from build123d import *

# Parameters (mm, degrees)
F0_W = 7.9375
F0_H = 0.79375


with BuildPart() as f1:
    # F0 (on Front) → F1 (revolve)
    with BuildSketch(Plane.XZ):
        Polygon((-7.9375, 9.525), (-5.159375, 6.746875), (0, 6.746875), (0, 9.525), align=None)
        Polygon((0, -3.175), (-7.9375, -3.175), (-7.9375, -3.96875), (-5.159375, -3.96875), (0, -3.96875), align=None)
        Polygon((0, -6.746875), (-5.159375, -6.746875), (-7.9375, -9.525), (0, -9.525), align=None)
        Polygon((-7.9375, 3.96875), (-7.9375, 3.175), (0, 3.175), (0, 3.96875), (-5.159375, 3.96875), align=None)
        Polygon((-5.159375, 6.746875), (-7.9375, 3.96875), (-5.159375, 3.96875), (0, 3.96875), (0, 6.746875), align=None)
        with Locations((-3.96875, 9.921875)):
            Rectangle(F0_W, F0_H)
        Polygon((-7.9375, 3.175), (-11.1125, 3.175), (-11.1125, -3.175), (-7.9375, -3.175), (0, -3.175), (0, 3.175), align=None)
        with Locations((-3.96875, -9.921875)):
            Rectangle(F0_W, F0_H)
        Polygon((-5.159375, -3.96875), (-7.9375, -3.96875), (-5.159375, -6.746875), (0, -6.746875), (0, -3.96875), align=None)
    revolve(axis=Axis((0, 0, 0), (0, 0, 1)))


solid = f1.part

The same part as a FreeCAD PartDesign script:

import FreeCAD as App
import Part
import Sketcher

V = App.Vector
Q = App.Units.Quantity


def add_polygon(sketch, points):
    """Adds a closed chain of lines whose ends are joined by coincident constraints."""
    first, n = sketch.GeometryCount, len(points)
    for a, b in zip(points, points[1:] + points[:1]):
        sketch.addGeometry(Part.LineSegment(App.Vector(*a, 0), App.Vector(*b, 0)), False)
    for i in range(n):
        sketch.addConstraint(Sketcher.Constraint("Coincident", first + i, 2, first + (i + 1) % n, 1))

doc = App.newDocument("Part")
body = doc.addObject("PartDesign::Body", "Body")

# Sketch on XZ plane
sketch1 = doc.addObject("Sketcher::SketchObject", "Sketch")
body.addObject(sketch1)
sketch1.AttachmentSupport = (doc.XZ_Plane, [""])
sketch1.MapMode = "FlatFace"
add_polygon(sketch1, [(-7.9375, 9.525), (-5.159375, 6.746875), (-7.9375, 3.96875), (-7.9375, 3.175), (-11.1125, 3.175), (-11.1125, -3.175), (-7.9375, -3.175), (-7.9375, -3.96875), (-5.159375, -6.746875), (-7.9375, -9.525), (-7.9375, -10.31875), (0, -10.31875), (0, 10.31875), (-7.9375, 10.31875)])  # lines 0-13
sketch1.addConstraint([
    Sketcher.Constraint("Vertical", 2),
    Sketcher.Constraint("Horizontal", 3),
    Sketcher.Constraint("Vertical", 4),
    Sketcher.Constraint("Horizontal", 5),
    Sketcher.Constraint("Vertical", 6),
    Sketcher.Constraint("Vertical", 9),
    Sketcher.Constraint("Horizontal", 10),
    Sketcher.Constraint("Vertical", 11),
    Sketcher.Constraint("Horizontal", 12),
    Sketcher.Constraint("Vertical", 13),
    Sketcher.Constraint("Symmetric", 10, 2, 11, 2, -1, 1),
    Sketcher.Constraint("Symmetric", 2, 2, 5, 2, -1),
    Sketcher.Constraint("Symmetric", 0, 2, 7, 2, -1),
    Sketcher.Constraint("Symmetric", 8, 2, 13, 2, -1),
    Sketcher.Constraint("Perpendicular", 0, 1),
    Sketcher.Constraint("Perpendicular", 1, 7),
    Sketcher.Constraint("Perpendicular", 7, 8),
    Sketcher.Constraint("Vertical", 6, 2, 8, 2),
    Sketcher.Constraint("Equal", 6, 9),
    Sketcher.Constraint("DistanceY", 4, 2, 4, 1, Q("0.25 in")),
    Sketcher.Constraint("DistanceY", 8, 2, 2, 2, Q("0.5 in")),
    Sketcher.Constraint("DistanceX", 3, 2, 3, 1, Q("0.125 in")),
    Sketcher.Constraint("DistanceX", 10, 1, 10, 2, Q("0.3125 in")),
    Sketcher.Constraint("DistanceY", 2, 2, 2, 1, Q("0.03125 in")),
])
revolution = doc.addObject("PartDesign::Revolution", "Revolution")
body.addObject(revolution)
revolution.Profile = sketch1
revolution.ReferenceAxis = (sketch1, ["V_Axis"])
revolution.Angle = 360

doc.recompute()
